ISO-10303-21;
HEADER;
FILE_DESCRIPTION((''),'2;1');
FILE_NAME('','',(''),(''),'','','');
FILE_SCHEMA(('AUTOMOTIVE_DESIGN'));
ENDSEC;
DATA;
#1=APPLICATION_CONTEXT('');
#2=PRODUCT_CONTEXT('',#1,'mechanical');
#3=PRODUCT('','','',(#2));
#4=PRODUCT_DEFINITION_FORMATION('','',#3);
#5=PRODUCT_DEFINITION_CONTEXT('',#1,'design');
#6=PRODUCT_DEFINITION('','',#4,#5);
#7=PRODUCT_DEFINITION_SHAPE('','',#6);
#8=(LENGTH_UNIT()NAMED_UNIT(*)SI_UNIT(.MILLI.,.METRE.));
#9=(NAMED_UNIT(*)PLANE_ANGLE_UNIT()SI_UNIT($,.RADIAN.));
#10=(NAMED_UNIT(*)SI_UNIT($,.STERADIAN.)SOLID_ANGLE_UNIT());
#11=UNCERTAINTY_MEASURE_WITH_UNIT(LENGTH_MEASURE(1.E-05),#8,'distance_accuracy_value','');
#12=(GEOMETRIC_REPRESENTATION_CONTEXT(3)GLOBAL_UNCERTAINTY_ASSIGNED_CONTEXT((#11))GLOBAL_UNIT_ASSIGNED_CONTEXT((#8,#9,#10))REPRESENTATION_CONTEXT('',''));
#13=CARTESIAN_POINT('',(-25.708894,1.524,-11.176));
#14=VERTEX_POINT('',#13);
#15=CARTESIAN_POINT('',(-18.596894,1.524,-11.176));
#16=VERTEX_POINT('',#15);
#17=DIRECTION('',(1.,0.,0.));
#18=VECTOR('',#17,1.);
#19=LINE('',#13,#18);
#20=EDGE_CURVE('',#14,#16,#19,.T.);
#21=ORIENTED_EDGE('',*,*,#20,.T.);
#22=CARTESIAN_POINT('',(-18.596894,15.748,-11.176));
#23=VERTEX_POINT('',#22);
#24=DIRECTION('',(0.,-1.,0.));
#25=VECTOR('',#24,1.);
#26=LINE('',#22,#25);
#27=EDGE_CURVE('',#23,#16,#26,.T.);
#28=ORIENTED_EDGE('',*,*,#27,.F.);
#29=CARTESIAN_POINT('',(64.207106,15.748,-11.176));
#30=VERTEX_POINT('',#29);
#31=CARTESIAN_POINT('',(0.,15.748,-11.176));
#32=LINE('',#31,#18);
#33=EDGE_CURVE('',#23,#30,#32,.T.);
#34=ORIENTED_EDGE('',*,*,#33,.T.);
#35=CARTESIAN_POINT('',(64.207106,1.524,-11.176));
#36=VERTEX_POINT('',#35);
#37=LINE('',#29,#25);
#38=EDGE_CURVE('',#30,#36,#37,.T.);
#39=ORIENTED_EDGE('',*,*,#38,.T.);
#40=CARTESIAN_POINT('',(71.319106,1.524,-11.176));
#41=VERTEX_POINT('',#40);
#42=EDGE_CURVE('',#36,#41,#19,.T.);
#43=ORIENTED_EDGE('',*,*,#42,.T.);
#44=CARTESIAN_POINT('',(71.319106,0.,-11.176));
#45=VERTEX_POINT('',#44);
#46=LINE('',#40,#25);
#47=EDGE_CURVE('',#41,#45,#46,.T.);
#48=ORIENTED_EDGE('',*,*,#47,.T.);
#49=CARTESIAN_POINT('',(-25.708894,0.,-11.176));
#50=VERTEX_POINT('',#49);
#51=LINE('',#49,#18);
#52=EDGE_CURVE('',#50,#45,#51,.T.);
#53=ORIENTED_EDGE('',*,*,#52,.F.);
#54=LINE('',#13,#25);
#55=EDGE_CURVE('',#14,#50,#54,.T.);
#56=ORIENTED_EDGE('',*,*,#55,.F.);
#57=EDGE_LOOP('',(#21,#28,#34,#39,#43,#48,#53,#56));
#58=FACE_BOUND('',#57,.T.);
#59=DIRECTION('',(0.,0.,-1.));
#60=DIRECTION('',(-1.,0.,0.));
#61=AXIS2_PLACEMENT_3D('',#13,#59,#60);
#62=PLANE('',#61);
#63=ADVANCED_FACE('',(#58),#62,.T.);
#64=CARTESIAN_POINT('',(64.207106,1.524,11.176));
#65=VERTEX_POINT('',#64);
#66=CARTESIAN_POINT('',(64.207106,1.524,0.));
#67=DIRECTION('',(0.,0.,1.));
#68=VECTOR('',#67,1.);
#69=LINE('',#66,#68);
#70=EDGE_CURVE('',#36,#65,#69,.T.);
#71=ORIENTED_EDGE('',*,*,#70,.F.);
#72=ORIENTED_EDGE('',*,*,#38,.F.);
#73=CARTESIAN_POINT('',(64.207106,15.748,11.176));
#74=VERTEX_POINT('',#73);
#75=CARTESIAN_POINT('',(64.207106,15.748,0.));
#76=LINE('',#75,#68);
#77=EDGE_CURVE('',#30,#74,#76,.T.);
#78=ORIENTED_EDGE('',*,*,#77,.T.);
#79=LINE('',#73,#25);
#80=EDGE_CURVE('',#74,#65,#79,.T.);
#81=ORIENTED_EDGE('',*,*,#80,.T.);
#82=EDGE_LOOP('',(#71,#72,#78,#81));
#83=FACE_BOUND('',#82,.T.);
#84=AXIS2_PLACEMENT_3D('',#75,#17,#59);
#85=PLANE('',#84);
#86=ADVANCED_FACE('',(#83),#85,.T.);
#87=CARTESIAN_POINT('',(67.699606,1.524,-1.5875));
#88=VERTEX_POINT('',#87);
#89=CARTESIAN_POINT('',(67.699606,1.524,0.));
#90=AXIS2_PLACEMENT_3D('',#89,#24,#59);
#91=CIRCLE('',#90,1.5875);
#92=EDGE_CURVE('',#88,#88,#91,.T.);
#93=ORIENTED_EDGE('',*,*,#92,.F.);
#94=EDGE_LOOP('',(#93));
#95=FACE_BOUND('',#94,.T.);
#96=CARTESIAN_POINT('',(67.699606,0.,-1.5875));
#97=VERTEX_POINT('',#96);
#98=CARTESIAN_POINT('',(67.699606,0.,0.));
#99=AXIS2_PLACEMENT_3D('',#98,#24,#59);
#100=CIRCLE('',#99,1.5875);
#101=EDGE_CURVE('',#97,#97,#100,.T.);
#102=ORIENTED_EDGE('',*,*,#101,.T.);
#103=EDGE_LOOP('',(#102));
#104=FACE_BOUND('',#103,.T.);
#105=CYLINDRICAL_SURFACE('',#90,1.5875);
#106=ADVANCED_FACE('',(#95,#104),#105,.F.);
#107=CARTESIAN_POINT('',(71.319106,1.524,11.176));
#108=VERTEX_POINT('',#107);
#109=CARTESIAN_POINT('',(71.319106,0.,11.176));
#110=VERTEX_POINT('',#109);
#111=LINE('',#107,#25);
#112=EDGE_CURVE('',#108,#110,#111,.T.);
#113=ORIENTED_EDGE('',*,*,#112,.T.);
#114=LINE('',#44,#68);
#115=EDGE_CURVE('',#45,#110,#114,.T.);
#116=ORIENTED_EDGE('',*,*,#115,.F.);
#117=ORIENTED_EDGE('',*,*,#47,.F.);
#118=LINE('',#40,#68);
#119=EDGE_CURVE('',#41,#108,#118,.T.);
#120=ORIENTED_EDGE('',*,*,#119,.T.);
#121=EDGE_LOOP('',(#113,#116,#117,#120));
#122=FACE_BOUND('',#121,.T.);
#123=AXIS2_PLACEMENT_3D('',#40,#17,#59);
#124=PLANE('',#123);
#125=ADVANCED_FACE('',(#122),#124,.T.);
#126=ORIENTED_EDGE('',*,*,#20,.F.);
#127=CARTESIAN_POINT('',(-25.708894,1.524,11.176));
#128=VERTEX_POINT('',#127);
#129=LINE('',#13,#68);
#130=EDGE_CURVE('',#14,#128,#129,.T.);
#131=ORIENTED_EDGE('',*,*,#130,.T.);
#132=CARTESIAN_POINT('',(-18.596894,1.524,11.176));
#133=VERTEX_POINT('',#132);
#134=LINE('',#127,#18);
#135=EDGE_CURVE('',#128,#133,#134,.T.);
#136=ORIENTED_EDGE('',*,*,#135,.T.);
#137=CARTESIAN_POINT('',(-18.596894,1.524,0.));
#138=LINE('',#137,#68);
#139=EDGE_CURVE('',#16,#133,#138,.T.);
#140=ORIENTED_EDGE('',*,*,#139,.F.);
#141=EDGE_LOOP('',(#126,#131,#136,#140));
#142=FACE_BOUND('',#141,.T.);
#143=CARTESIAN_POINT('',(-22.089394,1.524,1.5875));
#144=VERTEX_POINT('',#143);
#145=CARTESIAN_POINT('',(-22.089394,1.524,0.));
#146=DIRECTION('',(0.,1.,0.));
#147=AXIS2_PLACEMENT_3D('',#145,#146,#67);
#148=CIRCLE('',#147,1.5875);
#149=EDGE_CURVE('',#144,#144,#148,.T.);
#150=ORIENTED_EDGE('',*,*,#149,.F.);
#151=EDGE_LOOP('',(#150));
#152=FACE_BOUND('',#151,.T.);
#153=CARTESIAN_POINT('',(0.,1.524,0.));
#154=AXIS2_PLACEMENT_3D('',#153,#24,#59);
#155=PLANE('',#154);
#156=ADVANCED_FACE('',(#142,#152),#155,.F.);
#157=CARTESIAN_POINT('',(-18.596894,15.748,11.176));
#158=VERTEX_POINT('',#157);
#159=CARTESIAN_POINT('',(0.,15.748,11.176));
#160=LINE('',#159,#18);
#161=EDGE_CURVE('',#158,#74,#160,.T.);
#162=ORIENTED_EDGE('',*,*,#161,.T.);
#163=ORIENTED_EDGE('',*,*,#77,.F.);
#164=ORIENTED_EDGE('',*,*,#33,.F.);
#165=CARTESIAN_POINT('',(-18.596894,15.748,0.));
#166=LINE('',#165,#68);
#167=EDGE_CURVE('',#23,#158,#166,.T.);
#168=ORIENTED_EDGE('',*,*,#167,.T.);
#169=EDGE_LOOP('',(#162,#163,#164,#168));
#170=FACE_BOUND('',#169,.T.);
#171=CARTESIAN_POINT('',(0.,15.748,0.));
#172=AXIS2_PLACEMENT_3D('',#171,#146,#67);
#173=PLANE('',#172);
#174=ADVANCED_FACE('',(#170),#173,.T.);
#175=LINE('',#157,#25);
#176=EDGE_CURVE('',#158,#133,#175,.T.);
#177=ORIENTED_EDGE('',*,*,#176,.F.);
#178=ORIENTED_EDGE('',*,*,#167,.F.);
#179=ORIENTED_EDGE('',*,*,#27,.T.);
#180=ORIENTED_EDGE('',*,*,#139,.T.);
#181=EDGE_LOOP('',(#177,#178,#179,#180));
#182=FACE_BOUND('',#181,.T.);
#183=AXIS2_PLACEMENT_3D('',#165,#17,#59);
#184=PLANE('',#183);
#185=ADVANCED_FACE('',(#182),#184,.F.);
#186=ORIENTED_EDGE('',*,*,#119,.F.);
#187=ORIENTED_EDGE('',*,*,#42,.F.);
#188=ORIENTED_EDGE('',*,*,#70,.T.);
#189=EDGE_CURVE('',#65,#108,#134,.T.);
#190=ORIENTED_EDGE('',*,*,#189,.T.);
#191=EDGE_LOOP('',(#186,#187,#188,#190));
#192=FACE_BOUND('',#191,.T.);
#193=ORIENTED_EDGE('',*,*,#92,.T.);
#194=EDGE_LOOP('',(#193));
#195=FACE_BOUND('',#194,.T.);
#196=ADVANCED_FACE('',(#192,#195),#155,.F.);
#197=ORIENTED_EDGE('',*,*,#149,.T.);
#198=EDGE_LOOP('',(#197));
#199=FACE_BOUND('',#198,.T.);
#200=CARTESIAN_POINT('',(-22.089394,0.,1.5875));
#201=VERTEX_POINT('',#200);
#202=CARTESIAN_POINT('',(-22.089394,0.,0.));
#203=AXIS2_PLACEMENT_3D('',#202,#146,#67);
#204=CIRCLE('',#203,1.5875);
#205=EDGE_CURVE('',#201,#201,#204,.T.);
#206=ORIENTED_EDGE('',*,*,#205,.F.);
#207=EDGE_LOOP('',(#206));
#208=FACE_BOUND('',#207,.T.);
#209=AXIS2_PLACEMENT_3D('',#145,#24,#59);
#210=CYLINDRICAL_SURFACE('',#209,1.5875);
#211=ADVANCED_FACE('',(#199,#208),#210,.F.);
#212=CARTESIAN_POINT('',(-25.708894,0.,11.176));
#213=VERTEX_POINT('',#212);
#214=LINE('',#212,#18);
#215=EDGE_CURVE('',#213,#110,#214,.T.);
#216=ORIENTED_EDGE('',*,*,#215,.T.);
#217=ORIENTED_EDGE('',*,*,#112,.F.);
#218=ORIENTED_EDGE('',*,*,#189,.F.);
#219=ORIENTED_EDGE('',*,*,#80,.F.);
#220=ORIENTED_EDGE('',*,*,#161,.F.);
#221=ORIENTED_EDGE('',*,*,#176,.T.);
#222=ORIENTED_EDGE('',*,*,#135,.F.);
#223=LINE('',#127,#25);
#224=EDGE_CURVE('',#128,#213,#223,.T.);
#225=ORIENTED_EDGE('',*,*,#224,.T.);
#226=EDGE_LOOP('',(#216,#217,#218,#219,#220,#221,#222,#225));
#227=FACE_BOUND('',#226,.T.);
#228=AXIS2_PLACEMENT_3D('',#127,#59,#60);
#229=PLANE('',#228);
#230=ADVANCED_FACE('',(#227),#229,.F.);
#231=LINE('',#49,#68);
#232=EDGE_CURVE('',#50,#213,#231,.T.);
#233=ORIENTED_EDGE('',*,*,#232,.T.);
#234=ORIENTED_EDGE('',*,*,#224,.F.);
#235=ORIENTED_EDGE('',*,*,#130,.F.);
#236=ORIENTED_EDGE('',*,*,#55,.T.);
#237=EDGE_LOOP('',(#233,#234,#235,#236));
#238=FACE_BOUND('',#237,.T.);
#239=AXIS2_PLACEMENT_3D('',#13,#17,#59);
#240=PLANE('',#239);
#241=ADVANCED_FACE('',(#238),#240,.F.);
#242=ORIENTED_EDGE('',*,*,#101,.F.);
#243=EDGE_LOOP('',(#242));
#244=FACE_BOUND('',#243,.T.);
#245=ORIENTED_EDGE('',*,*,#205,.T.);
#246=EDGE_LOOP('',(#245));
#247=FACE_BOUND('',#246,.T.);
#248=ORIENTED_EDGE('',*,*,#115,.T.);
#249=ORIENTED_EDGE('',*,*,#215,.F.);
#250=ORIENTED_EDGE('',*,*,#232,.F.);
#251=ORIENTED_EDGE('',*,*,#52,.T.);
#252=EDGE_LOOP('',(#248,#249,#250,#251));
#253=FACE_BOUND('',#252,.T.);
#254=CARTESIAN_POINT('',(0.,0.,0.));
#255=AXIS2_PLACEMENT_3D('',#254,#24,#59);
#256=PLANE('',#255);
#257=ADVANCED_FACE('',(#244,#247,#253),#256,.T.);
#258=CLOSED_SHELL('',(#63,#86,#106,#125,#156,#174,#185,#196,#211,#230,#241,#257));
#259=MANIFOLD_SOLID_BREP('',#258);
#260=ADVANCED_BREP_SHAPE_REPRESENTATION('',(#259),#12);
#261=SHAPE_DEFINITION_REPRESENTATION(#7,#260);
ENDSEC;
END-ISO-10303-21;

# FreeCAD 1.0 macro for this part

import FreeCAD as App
import Part
import Sketcher
Q = App.Units.Quantity


def add_polygon(sketch, points):
    """Adds a closed chain of lines whose ends are joined by coincident constraints."""
    first, n = sketch.GeometryCount, len(points)
    for a, b in zip(points, points[1:] + points[:1]):
        sketch.addGeometry(Part.LineSegment(App.Vector(*a, 0), App.Vector(*b, 0)), False)
    for i in range(n):
        sketch.addConstraint(Sketcher.Constraint("Coincident", first + i, 2, first + (i + 1) % n, 1))

doc = App.newDocument("Part")
body = doc.addObject("PartDesign::Body", "Body")

# Sketch on XZ plane
sketch1 = body.newObject("Sketcher::SketchObject", "Sketch")
sketch1.AttachmentSupport = (doc.getObject("XZ_Plane"), [""])
sketch1.MapMode = "FlatFace"
add_polygon(sketch1, [(-25.7, -11.2), (-25.7, 11.2), (71.3, 11.2), (71.3, -11.2)])  # lines 0-3
sketch1.addGeometry(Part.Circle(App.Vector(-22.1, 0, 0), App.Vector(0, 0, 1), 1.6), False)  # 4
sketch1.addGeometry(Part.Circle(App.Vector(67.7, 0, 0), App.Vector(0, 0, 1), 1.6), False)  # 5
sketch1.addConstraint(Sketcher.Constraint("Vertical", 0))
sketch1.addConstraint(Sketcher.Constraint("Horizontal", 1))
sketch1.addConstraint(Sketcher.Constraint("Vertical", 2))
sketch1.addConstraint(Sketcher.Constraint("Horizontal", 3))
sketch1.addConstraint(Sketcher.Constraint("Equal", 4, 5))
sketch1.addConstraint(Sketcher.Constraint("PointOnObject", 4, 3, -1))
sketch1.addConstraint(Sketcher.Constraint("PointOnObject", 5, 3, -1))
sketch1.addConstraint(Sketcher.Constraint("Diameter", 4, Q("0.125 in")))
sketch1.addConstraint(Sketcher.Constraint("DistanceX", 1, 1, 1, 2, Q("3.82 in")))
sketch1.addConstraint(Sketcher.Constraint("DistanceY", 0, 1, 0, 2, Q("0.88 in")))
sketch1.addConstraint(Sketcher.Constraint("DistanceY", -1, 1, 0, 2, Q("0.44 in")))
sketch1.addConstraint(Sketcher.Constraint("DistanceX", 4, 3, 5, 3, Q("3.535 in")))
sketch1.addConstraint(Sketcher.Constraint("DistanceX", 0, 2, 4, 3, Q("0.1425 in")))
sketch1.addConstraint(Sketcher.Constraint("DistanceX", 4, 3, -1, 1, Q("22.089394 mm")))
pad1 = body.newObject("PartDesign::Pad", "Pad")
pad1.Profile = sketch1
pad1.Length = Q("0.06 in")
pad1.Reversed = True

# Sketch on XZ plane
sketch2 = body.newObject("Sketcher::SketchObject", "Sketch001")
sketch2.AttachmentSupport = (doc.getObject("XZ_Plane"), [""])
sketch2.MapMode = "FlatFace"
add_polygon(sketch2, [(-19, -11), (-19, 11), (64, 11), (64, -11)])  # lines 0-3
sketch2.addConstraint(Sketcher.Constraint("Vertical", 0))
sketch2.addConstraint(Sketcher.Constraint("Horizontal", 1))
sketch2.addConstraint(Sketcher.Constraint("Vertical", 2))
sketch2.addConstraint(Sketcher.Constraint("Horizontal", 3))
sketch2.addConstraint(Sketcher.Constraint("DistanceX", 1, 1, 1, 2, Q("3.26 in")))
sketch2.addConstraint(Sketcher.Constraint("DistanceY", 0, 1, 0, 2, Q("0.88 in")))
sketch2.addConstraint(Sketcher.Constraint("DistanceY", -1, 1, 0, 2, Q("0.44 in")))
sketch2.addConstraint(Sketcher.Constraint("DistanceX", 0, 2, -1, 1, Q("18.596894 mm")))
pad2 = body.newObject("PartDesign::Pad", "Pad001")
pad2.Profile = sketch2
pad2.Length = Q("0.62 in")
pad2.Reversed = True

doc.recompute()
